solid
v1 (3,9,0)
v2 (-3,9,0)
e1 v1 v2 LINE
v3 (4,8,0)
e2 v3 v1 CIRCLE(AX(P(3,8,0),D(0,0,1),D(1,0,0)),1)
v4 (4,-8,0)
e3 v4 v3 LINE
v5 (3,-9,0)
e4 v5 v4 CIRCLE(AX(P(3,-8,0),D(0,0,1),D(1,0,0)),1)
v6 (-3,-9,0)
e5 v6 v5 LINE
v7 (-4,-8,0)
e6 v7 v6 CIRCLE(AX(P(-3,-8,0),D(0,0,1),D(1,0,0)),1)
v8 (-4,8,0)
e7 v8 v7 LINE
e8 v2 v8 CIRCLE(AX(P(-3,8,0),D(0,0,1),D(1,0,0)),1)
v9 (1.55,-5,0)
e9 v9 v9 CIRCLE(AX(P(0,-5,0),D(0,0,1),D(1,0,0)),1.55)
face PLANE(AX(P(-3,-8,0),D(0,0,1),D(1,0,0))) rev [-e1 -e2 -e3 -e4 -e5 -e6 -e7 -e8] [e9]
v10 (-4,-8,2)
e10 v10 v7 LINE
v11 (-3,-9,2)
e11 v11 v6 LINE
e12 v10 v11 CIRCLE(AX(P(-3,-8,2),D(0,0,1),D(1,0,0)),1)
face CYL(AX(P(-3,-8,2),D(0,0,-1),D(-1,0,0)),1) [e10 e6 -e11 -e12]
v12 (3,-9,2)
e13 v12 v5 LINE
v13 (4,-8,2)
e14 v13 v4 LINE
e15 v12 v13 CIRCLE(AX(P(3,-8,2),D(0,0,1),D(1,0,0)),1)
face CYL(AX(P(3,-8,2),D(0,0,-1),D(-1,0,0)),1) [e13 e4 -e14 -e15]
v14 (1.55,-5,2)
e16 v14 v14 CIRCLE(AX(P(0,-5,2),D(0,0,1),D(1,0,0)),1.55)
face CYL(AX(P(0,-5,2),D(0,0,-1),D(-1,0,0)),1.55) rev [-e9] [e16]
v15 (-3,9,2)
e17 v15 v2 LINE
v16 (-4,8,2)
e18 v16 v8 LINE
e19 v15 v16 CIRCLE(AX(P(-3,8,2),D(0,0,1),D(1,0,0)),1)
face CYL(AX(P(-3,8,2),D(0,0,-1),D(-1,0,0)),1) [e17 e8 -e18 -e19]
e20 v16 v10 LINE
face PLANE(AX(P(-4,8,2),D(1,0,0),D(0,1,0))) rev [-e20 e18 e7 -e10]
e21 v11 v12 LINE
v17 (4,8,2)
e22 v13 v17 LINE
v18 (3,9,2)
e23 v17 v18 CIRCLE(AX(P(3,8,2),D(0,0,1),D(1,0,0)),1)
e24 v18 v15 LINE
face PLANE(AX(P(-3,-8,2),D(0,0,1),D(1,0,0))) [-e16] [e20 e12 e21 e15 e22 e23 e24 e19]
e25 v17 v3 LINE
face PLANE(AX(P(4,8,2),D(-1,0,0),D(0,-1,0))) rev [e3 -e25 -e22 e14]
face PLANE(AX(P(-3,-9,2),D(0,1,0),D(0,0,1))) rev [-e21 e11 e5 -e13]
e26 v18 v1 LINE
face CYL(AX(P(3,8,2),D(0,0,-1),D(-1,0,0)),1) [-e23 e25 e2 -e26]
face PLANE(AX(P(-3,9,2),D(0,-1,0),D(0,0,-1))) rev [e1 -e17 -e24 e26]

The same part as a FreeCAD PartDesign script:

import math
import FreeCAD as App
import Part
import Sketcher
from FreeCAD import Vector
Q = App.Units.Quantity

doc = App.newDocument("Part")
body = doc.addObject("PartDesign::Body", "Body")

# Sketch on XY plane
sketch1 = body.newObject("Sketcher::SketchObject", "Sketch")
sketch1.AttachmentSupport = (doc.getObject("XY_Plane"), [""])
sketch1.MapMode = "FlatFace"
sketch1.addGeometry([
    Part.LineSegment(Vector(3, 9, 0), Vector(-3, 9, 0)),  # 0
    Part.ArcOfCircle(Part.Circle(Vector(-3, 8, 0), Vector(0, 0, 1), 1), math.radians(90), math.radians(180)),  # 1
    Part.LineSegment(Vector(-4, 8, 0), Vector(-4, -8, 0)),  # 2
    Part.ArcOfCircle(Part.Circle(Vector(-3, -8, 0), Vector(0, 0, 1), 1), math.radians(-180), math.radians(-90)),  # 3
    Part.LineSegment(Vector(-3, -9, 0), Vector(3, -9, 0)),  # 4
    Part.ArcOfCircle(Part.Circle(Vector(3, -8, 0), Vector(0, 0, 1), 1), math.radians(-90), math.radians(0)),  # 5
    Part.LineSegment(Vector(4, -8, 0), Vector(4, 8, 0)),  # 6
    Part.ArcOfCircle(Part.Circle(Vector(3, 8, 0), Vector(0, 0, 1), 1), math.radians(0), math.radians(90)),  # 7
    Part.Circle(Vector(0, -5, 0), Vector(0, 0, 1), 1.55),  # 8
], False)
sketch1.addConstraint([
    Sketcher.Constraint("Tangent", 0, 2, 1, 1),
    Sketcher.Constraint("Tangent", 1, 2, 2, 1),
    Sketcher.Constraint("Tangent", 2, 2, 3, 1),
    Sketcher.Constraint("Tangent", 3, 2, 4, 1),
    Sketcher.Constraint("Tangent", 4, 2, 5, 1),
    Sketcher.Constraint("Tangent", 5, 2, 6, 1),
    Sketcher.Constraint("Tangent", 6, 2, 7, 1),
    Sketcher.Constraint("Tangent", 7, 2, 0, 1),
    Sketcher.Constraint("Horizontal", 0),
    Sketcher.Constraint("Vertical", 2),
    Sketcher.Constraint("Horizontal", 4),
    Sketcher.Constraint("Vertical", 6),
    Sketcher.Constraint("Equal", 1, 3),
    Sketcher.Constraint("Equal", 3, 5),
    Sketcher.Constraint("Equal", 5, 7),
    Sketcher.Constraint("Symmetric", 1, 3, 5, 3, -1, 1),
    Sketcher.Constraint("PointOnObject", 8, 3, -2),
    Sketcher.Constraint("Radius", 1, Q("1 mm")),
    Sketcher.Constraint("Diameter", 8, Q("3.1 mm")),
    Sketcher.Constraint("DistanceX", 0, 2, 0, 1, Q("6 mm")),
    Sketcher.Constraint("DistanceY", 2, 2, 2, 1, Q("16 mm")),
    Sketcher.Constraint("DistanceY", 8, 3, -1, 1, Q("5 mm")),
])
pad1 = body.newObject("PartDesign::Pad", "Pad")
pad1.Profile = sketch1
pad1.Length = 2

doc.recompute()
